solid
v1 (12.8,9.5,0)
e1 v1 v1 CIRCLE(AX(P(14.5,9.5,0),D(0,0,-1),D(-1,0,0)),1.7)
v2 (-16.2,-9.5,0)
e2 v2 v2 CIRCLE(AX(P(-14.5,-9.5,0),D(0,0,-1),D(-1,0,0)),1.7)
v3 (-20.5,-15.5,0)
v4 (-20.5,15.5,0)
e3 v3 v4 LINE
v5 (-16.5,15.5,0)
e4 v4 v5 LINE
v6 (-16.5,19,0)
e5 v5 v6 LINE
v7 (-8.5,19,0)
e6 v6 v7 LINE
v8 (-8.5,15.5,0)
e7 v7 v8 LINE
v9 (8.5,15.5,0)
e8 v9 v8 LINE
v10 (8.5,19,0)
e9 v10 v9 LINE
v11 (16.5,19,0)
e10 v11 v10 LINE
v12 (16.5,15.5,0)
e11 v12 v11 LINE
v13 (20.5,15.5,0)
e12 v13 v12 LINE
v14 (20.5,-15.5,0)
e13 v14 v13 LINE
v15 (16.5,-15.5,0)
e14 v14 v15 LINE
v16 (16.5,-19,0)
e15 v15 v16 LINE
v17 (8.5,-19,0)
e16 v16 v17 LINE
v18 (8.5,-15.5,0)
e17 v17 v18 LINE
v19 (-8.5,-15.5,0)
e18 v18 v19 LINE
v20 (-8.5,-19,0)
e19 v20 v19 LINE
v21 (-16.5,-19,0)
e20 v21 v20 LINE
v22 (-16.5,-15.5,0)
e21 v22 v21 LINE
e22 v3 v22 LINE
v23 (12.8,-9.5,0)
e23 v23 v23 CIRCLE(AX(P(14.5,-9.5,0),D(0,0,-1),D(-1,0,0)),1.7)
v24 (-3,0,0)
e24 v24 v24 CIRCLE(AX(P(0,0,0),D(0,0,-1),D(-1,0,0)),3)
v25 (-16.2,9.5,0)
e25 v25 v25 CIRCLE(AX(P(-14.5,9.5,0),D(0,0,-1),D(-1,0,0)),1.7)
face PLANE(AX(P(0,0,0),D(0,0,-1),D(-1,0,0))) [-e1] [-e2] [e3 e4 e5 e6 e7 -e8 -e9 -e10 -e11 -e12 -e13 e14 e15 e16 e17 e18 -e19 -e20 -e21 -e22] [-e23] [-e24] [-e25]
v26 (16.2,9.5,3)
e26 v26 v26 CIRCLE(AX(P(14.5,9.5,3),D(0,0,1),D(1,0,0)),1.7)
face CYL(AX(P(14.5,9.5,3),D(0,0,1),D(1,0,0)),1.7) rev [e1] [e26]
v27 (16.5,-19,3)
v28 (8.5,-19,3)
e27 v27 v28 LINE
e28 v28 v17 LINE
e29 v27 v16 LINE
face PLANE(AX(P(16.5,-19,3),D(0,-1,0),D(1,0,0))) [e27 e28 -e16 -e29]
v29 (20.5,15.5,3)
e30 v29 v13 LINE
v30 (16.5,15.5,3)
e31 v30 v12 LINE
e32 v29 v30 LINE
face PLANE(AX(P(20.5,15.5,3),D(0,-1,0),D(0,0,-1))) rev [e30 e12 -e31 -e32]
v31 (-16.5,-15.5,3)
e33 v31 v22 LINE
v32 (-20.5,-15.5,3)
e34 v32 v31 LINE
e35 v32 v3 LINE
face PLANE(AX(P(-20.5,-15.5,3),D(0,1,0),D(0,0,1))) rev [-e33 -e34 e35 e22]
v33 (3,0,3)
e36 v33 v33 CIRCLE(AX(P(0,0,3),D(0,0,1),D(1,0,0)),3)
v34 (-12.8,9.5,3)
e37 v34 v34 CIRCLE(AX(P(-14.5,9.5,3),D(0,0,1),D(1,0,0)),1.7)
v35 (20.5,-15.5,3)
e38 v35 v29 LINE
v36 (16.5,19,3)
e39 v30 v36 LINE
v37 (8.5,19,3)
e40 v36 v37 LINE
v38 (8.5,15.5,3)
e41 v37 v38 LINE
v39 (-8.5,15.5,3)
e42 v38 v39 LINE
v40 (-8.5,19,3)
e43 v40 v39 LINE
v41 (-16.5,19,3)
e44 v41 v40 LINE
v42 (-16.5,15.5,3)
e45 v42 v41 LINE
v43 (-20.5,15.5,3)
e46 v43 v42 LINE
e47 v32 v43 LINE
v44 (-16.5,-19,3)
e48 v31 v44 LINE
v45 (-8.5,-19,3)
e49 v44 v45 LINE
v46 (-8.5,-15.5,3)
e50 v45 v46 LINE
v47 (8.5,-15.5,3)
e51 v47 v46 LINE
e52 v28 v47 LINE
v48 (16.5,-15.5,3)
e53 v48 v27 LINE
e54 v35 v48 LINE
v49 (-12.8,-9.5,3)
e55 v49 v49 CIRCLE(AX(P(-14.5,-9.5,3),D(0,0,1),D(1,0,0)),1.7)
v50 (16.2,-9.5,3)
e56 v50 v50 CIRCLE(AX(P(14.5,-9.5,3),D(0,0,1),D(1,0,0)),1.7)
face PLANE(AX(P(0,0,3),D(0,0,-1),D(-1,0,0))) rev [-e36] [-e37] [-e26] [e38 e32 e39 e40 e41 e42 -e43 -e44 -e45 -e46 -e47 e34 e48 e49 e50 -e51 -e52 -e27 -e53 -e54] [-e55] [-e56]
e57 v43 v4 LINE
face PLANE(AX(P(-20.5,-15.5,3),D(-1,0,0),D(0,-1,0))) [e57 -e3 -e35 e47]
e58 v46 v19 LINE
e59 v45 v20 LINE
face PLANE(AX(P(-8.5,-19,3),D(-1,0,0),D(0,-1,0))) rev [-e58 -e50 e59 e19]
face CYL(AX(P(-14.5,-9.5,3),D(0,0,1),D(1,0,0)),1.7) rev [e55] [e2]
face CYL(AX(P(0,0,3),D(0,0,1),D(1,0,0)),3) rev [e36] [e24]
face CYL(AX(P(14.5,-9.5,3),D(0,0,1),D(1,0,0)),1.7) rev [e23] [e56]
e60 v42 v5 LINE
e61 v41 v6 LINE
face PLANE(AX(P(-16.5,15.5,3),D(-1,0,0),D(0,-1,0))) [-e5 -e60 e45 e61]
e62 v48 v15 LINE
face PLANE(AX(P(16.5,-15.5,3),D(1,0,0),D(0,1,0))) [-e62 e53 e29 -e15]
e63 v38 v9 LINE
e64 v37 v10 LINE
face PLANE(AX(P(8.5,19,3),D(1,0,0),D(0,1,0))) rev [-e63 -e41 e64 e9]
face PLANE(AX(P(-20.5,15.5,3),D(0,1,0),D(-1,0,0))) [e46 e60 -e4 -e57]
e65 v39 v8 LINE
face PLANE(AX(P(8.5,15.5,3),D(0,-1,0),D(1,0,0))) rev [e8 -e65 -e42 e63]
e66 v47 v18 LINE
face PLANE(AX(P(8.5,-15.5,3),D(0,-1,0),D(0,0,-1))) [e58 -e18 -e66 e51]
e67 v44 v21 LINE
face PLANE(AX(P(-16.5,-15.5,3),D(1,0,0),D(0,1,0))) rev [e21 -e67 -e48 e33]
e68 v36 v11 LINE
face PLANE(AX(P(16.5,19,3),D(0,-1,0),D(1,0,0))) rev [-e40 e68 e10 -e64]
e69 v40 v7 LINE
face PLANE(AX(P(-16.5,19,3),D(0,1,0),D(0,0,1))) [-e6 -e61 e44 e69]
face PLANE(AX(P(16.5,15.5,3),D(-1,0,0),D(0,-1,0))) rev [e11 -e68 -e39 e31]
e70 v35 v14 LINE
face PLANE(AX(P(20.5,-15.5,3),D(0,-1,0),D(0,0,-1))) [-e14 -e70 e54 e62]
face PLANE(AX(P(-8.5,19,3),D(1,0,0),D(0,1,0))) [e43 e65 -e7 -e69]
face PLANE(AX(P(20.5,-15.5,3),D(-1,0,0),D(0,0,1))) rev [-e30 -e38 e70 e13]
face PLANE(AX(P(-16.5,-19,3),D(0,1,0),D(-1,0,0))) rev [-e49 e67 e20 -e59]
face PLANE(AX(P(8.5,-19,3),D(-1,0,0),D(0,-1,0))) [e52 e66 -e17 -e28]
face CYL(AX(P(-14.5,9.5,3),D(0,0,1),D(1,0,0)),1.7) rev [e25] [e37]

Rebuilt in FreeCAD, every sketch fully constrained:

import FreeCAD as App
import Part
import Sketcher
Q = App.Units.Quantity

doc = App.newDocument("Part")
body = doc.addObject("PartDesign::Body", "Body")

# Sketch on XY plane
sketch1 = body.newObject("Sketcher::SketchObject", "Sketch")
sketch1.AttachmentSupport = (doc.getObject("XY_Plane"), [""])
sketch1.MapMode = "FlatFace"
sketch1.addGeometry([
    Part.LineSegment(App.Vector(20.5, -15.5, 0), App.Vector(20.5, 15.5, 0)),  # 0
    Part.LineSegment(App.Vector(20.5, 15.5, 0), App.Vector(16.5, 15.5, 0)),  # 1
    Part.LineSegment(App.Vector(16.5, 15.5, 0), App.Vector(16.5, 19, 0)),  # 2
    Part.LineSegment(App.Vector(16.5, 19, 0), App.Vector(8.5, 19, 0)),  # 3
    Part.LineSegment(App.Vector(8.5, 19, 0), App.Vector(8.5, 15.5, 0)),  # 4
    Part.LineSegment(App.Vector(8.5, 15.5, 0), App.Vector(-8.5, 15.5, 0)),  # 5
    Part.LineSegment(App.Vector(-8.5, 15.5, 0), App.Vector(-8.5, 19, 0)),  # 6
    Part.LineSegment(App.Vector(-8.5, 19, 0), App.Vector(-16.5, 19, 0)),  # 7
    Part.LineSegment(App.Vector(-16.5, 19, 0), App.Vector(-16.5, 15.5, 0)),  # 8
    Part.LineSegment(App.Vector(-16.5, 15.5, 0), App.Vector(-20.5, 15.5, 0)),  # 9
    Part.LineSegment(App.Vector(-20.5, 15.5, 0), App.Vector(-20.5, -15.5, 0)),  # 10
    Part.LineSegment(App.Vector(-20.5, -15.5, 0), App.Vector(-16.5, -15.5, 0)),  # 11
    Part.LineSegment(App.Vector(-16.5, -15.5, 0), App.Vector(-16.5, -19, 0)),  # 12
    Part.LineSegment(App.Vector(-16.5, -19, 0), App.Vector(-8.5, -19, 0)),  # 13
    Part.LineSegment(App.Vector(-8.5, -19, 0), App.Vector(-8.5, -15.5, 0)),  # 14
    Part.LineSegment(App.Vector(-8.5, -15.5, 0), App.Vector(8.5, -15.5, 0)),  # 15
    Part.LineSegment(App.Vector(8.5, -15.5, 0), App.Vector(8.5, -19, 0)),  # 16
    Part.LineSegment(App.Vector(8.5, -19, 0), App.Vector(16.5, -19, 0)),  # 17
    Part.LineSegment(App.Vector(16.5, -19, 0), App.Vector(16.5, -15.5, 0)),  # 18
    Part.LineSegment(App.Vector(16.5, -15.5, 0), App.Vector(20.5, -15.5, 0)),  # 19
], False)
sketch1.addConstraint([
    Sketcher.Constraint("Coincident", 0, 2, 1, 1),
    Sketcher.Constraint("Coincident", 1, 2, 2, 1),
    Sketcher.Constraint("Coincident", 2, 2, 3, 1),
    Sketcher.Constraint("Coincident", 3, 2, 4, 1),
    Sketcher.Constraint("Coincident", 4, 2, 5, 1),
    Sketcher.Constraint("Coincident", 5, 2, 6, 1),
    Sketcher.Constraint("Coincident", 6, 2, 7, 1),
    Sketcher.Constraint("Coincident", 7, 2, 8, 1),
    Sketcher.Constraint("Coincident", 8, 2, 9, 1),
    Sketcher.Constraint("Coincident", 9, 2, 10, 1),
    Sketcher.Constraint("Coincident", 10, 2, 11, 1),
    Sketcher.Constraint("Coincident", 11, 2, 12, 1),
    Sketcher.Constraint("Coincident", 12, 2, 13, 1),
    Sketcher.Constraint("Coincident", 13, 2, 14, 1),
    Sketcher.Constraint("Coincident", 14, 2, 15, 1),
    Sketcher.Constraint("Coincident", 15, 2, 16, 1),
    Sketcher.Constraint("Coincident", 16, 2, 17, 1),
    Sketcher.Constraint("Coincident", 17, 2, 18, 1),
    Sketcher.Constraint("Coincident", 18, 2, 19, 1),
    Sketcher.Constraint("Coincident", 19, 2, 0, 1),
    Sketcher.Constraint("Vertical", 0),
    Sketcher.Constraint("Horizontal", 1),
    Sketcher.Constraint("Vertical", 2),
    Sketcher.Constraint("Horizontal", 3),
    Sketcher.Constraint("Vertical", 4),
    Sketcher.Constraint("Horizontal", 5),
    Sketcher.Constraint("Vertical", 6),
    Sketcher.Constraint("Horizontal", 7),
    Sketcher.Constraint("Vertical", 8),
    Sketcher.Constraint("Horizontal", 9),
    Sketcher.Constraint("Vertical", 10),
    Sketcher.Constraint("Horizontal", 11),
    Sketcher.Constraint("Vertical", 12),
    Sketcher.Constraint("Horizontal", 13),
    Sketcher.Constraint("Vertical", 14),
    Sketcher.Constraint("Horizontal", 15),
    Sketcher.Constraint("Vertical", 16),
    Sketcher.Constraint("Horizontal", 17),
    Sketcher.Constraint("Vertical", 18),
    Sketcher.Constraint("Horizontal", 19),
    Sketcher.Constraint("Symmetric", 0, 2, 10, 2, -1, 1),
    Sketcher.Constraint("Symmetric", 2, 2, 12, 2, -1, 1),
    Sketcher.Constraint("Symmetric", 4, 2, 14, 2, -1, 1),
    Sketcher.Constraint("Symmetric", 6, 2, 16, 2, -1, 1),
    Sketcher.Constraint("Symmetric", 8, 2, 18, 2, -1, 1),
    Sketcher.Constraint("Symmetric", 3, 2, 6, 2, -2),
    Sketcher.Constraint("Symmetric", 1, 2, 8, 2, -2),
    Sketcher.Constraint("Horizontal", 1, 2, 4, 2),
    Sketcher.Constraint("DistanceX", 1, 2, 1, 1, Q("4 mm")),
    Sketcher.Constraint("DistanceX", 3, 2, 3, 1, Q("8 mm")),
    Sketcher.Constraint("DistanceX", 5, 2, 5, 1, Q("17 mm")),
    Sketcher.Constraint("DistanceY", 0, 1, 0, 2, Q("31 mm")),
    Sketcher.Constraint("DistanceY", 2, 1, 2, 2, Q("3.5 mm")),
])
pad1 = body.newObject("PartDesign::Pad", "Pad")
pad1.Profile = sketch1
pad1.Length = 3

# Sketch on XY plane
sketch2 = body.newObject("Sketcher::SketchObject", "Sketch001")
sketch2.AttachmentSupport = (doc.getObject("XY_Plane"), [""])
sketch2.MapMode = "FlatFace"
sketch2.AttachmentOffset = App.Placement(App.Vector(0, 0, 3), App.Rotation())
sketch2.addGeometry(Part.Circle(App.Vector(0, 0, 0), App.Vector(0, 0, 1), 3), False)
sketch2.addConstraint([
    Sketcher.Constraint("Coincident", 0, 3, -1, 1),
    Sketcher.Constraint("Diameter", 0, Q("6 mm")),
])
doc.recompute()
hole = body.newObject("PartDesign::Hole", "Hole")
hole.Profile = sketch2
hole.ThreadType = "None"
hole.Diameter = 6
hole.DepthType = "Dimension"
hole.Depth = 3
hole.DrillPoint = "Flat"

# Sketch on XY plane
sketch3 = body.newObject("Sketcher::SketchObject", "Sketch002")
sketch3.AttachmentSupport = (doc.getObject("XY_Plane"), [""])
sketch3.MapMode = "FlatFace"
sketch3.AttachmentOffset = App.Placement(App.Vector(0, 0, 3), App.Rotation())
sketch3.addGeometry(Part.Circle(App.Vector(14.5, 9.5, 0), App.Vector(0, 0, 1), 1.7), False)
sketch3.addConstraint([
    Sketcher.Constraint("Diameter", 0, Q("3.4 mm")),
    Sketcher.Constraint("DistanceX", -1, 1, 0, 3, Q("14.5 mm")),
    Sketcher.Constraint("DistanceY", -1, 1, 0, 3, Q("9.5 mm")),
])
doc.recompute()
hole2 = body.newObject("PartDesign::Hole", "Hole001")
hole2.Profile = sketch3
hole2.ThreadType = "None"
hole2.Diameter = 3.4
hole2.DepthType = "Dimension"
hole2.Depth = 3.001
hole2.DrillPoint = "Flat"
doc.recompute()

mirrored = body.newObject("PartDesign::Mirrored", "Mirrored")
mirrored.Originals = [hole2]
mirrored.MirrorPlane = (doc.getObject("YZ_Plane"), [""])
body.Tip = mirrored
doc.recompute()

mirrored2 = body.newObject("PartDesign::Mirrored", "Mirrored001")
mirrored2.Originals = [hole2]
mirrored2.MirrorPlane = (doc.getObject("XZ_Plane"), [""])
body.Tip = mirrored2

# Sketch on XY plane
sketch4 = body.newObject("Sketcher::SketchObject", "Sketch003")
sketch4.AttachmentSupport = (doc.getObject("XY_Plane"), [""])
sketch4.MapMode = "FlatFace"
sketch4.AttachmentOffset = App.Placement(App.Vector(0, 0, 3), App.Rotation())
sketch4.addGeometry(Part.Circle(App.Vector(-14.5, -9.5, 0), App.Vector(0, 0, 1), 1.7), False)
sketch4.addConstraint([
    Sketcher.Constraint("Diameter", 0, Q("3.4 mm")),
    Sketcher.Constraint("DistanceX", 0, 3, -1, 1, Q("14.5 mm")),
    Sketcher.Constraint("DistanceY", 0, 3, -1, 1, Q("9.5 mm")),
])
doc.recompute()
hole3 = body.newObject("PartDesign::Hole", "Hole002")
hole3.Profile = sketch4
hole3.ThreadType = "None"
hole3.Diameter = 3.4
hole3.DepthType = "Dimension"
hole3.Depth = 3.001
hole3.DrillPoint = "Flat"

doc.recompute()
